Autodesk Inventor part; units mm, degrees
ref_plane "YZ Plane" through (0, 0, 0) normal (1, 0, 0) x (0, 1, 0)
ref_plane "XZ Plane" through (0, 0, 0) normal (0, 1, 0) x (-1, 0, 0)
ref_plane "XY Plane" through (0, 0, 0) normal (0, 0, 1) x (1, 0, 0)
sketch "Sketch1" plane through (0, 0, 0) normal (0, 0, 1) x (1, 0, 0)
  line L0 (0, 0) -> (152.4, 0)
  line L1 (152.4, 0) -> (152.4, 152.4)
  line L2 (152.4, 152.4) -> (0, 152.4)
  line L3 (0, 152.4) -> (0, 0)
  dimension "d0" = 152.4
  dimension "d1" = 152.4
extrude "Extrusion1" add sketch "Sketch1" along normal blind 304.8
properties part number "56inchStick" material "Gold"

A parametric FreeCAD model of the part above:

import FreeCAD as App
import Part
import Sketcher
Q = App.Units.Quantity


def add_polygon(sketch, points):
    """Adds a closed chain of lines whose ends are joined by coincident constraints."""
    first, n = sketch.GeometryCount, len(points)
    for a, b in zip(points, points[1:] + points[:1]):
        sketch.addGeometry(Part.LineSegment(App.Vector(*a, 0), App.Vector(*b, 0)), False)
    for i in range(n):
        sketch.addConstraint(Sketcher.Constraint("Coincident", first + i, 2, first + (i + 1) % n, 1))

doc = App.newDocument("Part")
params = doc.addObject("Spreadsheet::Sheet", "Params")
for row, (alias, value) in enumerate([
    ("sketch1_width", "6 in"),
    ("pad1_length", "12 in"),
], start=1):
    params.set(f"A{row}", alias)
    params.set(f"B{row}", "=" + value)
    params.setAlias(f"B{row}", alias)

body = doc.addObject("PartDesign::Body", "Body")

# Sketch on XY plane
sketch1 = body.newObject("Sketcher::SketchObject", "Sketch")
sketch1.AttachmentSupport = (doc.getObject("XY_Plane"), [""])
sketch1.MapMode = "FlatFace"
add_polygon(sketch1, [(0, 152.4), (0, 0), (152.4, 0), (152.4, 152.4)])  # lines 0-3
sketch1.addConstraint(Sketcher.Constraint("Vertical", 0))
sketch1.addConstraint(Sketcher.Constraint("Horizontal", 1))
sketch1.addConstraint(Sketcher.Constraint("Vertical", 2))
sketch1.addConstraint(Sketcher.Constraint("Horizontal", 3))
sketch1.addConstraint(Sketcher.Constraint("Coincident", 0, 2, -1, 1))
sketch1.addConstraint(Sketcher.Constraint("Equal", 3, 0))
sketch1.addConstraint(Sketcher.Constraint("DistanceX", 1, 1, 1, 2, Q("6 in")))
sketch1.setExpression("Constraints[10]", "Params.sketch1_width")
pad1 = body.newObject("PartDesign::Pad", "Pad")
pad1.Profile = sketch1
pad1.setExpression("Length", "Params.pad1_length")

doc.recompute()
